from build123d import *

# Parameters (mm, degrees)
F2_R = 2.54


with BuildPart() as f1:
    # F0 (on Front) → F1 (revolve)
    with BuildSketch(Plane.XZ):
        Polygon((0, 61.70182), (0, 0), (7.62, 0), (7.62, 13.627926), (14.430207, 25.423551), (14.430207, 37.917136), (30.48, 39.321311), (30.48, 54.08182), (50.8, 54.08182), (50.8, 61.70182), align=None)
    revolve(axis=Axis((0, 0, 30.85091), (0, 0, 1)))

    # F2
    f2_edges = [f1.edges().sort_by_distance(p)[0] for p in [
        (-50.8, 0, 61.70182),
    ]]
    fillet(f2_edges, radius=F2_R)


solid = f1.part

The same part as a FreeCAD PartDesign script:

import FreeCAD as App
import Part
import Sketcher
from FreeCAD import Vector
Q = App.Units.Quantity


def edges_at(feature, points):
    """Names of the edges that pass closest to the given points."""
    edges = feature.Shape.Edges
    near = lambda p: min(range(len(edges)), key=lambda i: edges[i].distToShape(Part.Vertex(*p))[0])
    return sorted({f"Edge{near(p) + 1}" for p in points})


def add_polygon(sketch, points):
    """Adds a closed chain of lines whose ends are joined by coincident constraints."""
    first, n = sketch.GeometryCount, len(points)
    for a, b in zip(points, points[1:] + points[:1]):
        sketch.addGeometry(Part.LineSegment(App.Vector(*a, 0), App.Vector(*b, 0)), False)
    for i in range(n):
        sketch.addConstraint(Sketcher.Constraint("Coincident", first + i, 2, first + (i + 1) % n, 1))

doc = App.newDocument("Part")
body = doc.addObject("PartDesign::Body", "Body")

# Sketch on XZ plane
sketch1 = body.newObject("Sketcher::SketchObject", "Sketch")
sketch1.AttachmentSupport = (doc.getObject("XZ_Plane"), [""])
sketch1.MapMode = "FlatFace"
add_polygon(sketch1, [(0, 62), (0, 0), (8, 0), (8, 14), (14, 25), (14, 38), (30, 39), (30, 54), (51, 54), (51, 62)])  # lines 0-9
sketch1.addConstraint([
    Sketcher.Constraint("Vertical", 0),
    Sketcher.Constraint("Horizontal", 1),
    Sketcher.Constraint("Vertical", 2),
    Sketcher.Constraint("Vertical", 4),
    Sketcher.Constraint("Vertical", 6),
    Sketcher.Constraint("Horizontal", 7),
    Sketcher.Constraint("Vertical", 8),
    Sketcher.Constraint("Horizontal", 9),
    Sketcher.Constraint("Coincident", 0, 2, -1, 1),
    Sketcher.Constraint("Equal", 1, 8),
    Sketcher.Constraint("DistanceX", 9, 2, 9, 1, Q("2 in")),
    Sketcher.Constraint("DistanceX", 1, 1, 1, 2, Q("0.3 in")),
    Sketcher.Constraint("DistanceX", 7, 1, 7, 2, Q("0.8 in")),
    Sketcher.Constraint("Angle", 3, Q("60.000001 deg")),
    Sketcher.Constraint("Angle", 5, Q("5 deg")),
    Sketcher.Constraint("Distance", 5, Q("16.111101 mm")),
    Sketcher.Constraint("DistanceY", 0, 2, 0, 1, Q("61.70182 mm")),
    Sketcher.Constraint("DistanceY", 6, 1, 6, 2, Q("14.760509 mm")),
    Sketcher.Constraint("DistanceY", 2, 1, 2, 2, Q("13.627926 mm")),
])
revolution = body.newObject("PartDesign::Revolution", "Revolution")
revolution.Profile = sketch1
revolution.ReferenceAxis = (sketch1, ["V_Axis"])
revolution.Angle = 360
doc.recompute()

fillet = body.newObject("PartDesign::Fillet", "Fillet")
fillet.Base = (revolution, edges_at(revolution, [(-50.8, 0, 61.702)]))
fillet.Radius = Q("0.1 in")

doc.recompute()
